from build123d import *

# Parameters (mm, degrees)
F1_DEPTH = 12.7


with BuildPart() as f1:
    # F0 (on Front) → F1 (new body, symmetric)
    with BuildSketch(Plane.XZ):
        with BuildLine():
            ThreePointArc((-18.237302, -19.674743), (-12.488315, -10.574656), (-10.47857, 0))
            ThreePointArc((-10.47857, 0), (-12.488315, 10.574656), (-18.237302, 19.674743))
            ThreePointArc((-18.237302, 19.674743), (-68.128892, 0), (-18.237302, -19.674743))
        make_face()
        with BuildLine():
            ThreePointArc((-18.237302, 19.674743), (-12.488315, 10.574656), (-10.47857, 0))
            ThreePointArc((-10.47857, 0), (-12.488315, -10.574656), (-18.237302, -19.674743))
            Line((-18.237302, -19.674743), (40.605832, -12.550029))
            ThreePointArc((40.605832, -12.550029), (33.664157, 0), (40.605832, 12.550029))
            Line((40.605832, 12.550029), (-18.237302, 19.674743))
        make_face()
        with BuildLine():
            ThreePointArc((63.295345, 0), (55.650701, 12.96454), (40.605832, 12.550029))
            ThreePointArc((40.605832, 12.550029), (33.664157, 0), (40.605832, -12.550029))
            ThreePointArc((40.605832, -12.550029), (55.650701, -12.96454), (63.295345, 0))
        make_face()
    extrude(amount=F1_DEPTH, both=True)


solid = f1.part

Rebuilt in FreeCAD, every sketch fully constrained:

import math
import FreeCAD as App
import Part
import Sketcher

V = App.Vector
Q = App.Units.Quantity

doc = App.newDocument("Part")
body = doc.addObject("PartDesign::Body", "Body")

# Sketch on XZ plane
sketch1 = doc.addObject("Sketcher::SketchObject", "Sketch")
body.addObject(sketch1)
sketch1.AttachmentSupport = (doc.XZ_Plane, [""])
sketch1.MapMode = "FlatFace"
sketch1.addGeometry([
    Part.ArcOfCircle(Part.Circle(V(-39.303731, 0, 0), V(0, 0, 1), 28.825161), math.radians(43.043583), math.radians(316.956417)),  # 0
    Part.LineSegment(V(-18.237302, -19.674743, 0), V(40.605832, -12.550029, 0)),  # 1
    Part.ArcOfCircle(Part.Circle(V(48.479751, 0, 0), V(0, 0, 1), 14.815594), math.radians(-122.10426), math.radians(-0.000001)),  # 2
    Part.ArcOfCircle(Part.Circle(V(48.479751, 0, 0), V(0, 0, 1), 14.815594), math.radians(0.000001), math.radians(122.10426)),  # 3
    Part.LineSegment(V(40.605832, 12.550029, 0), V(-18.237302, 19.674743, 0)),  # 4
], False)
sketch1.addConstraint([
    Sketcher.Constraint("Coincident", 0, 2, 1, 1),
    Sketcher.Constraint("Coincident", 1, 2, 2, 1),
    Sketcher.Constraint("Tangent", 2, 2, 3, 1),
    Sketcher.Constraint("Coincident", 3, 2, 4, 1),
    Sketcher.Constraint("Coincident", 4, 2, 0, 1),
    Sketcher.Constraint("Equal", 2, 3),
    Sketcher.Constraint("Symmetric", 1, 2, 3, 2, -1),
    Sketcher.Constraint("Symmetric", 0, 2, 4, 2, -1),
    Sketcher.Constraint("PointOnObject", 2, 2, -1),
    Sketcher.Constraint("Radius", 0, 28.825161),
    Sketcher.Constraint("Radius", 2, 14.815594),
    Sketcher.Constraint("DistanceX", 4, 2, -1, 1, 18.237302),
    Sketcher.Constraint("DistanceX", 0, 3, -1, 1, 39.303731),
    Sketcher.Constraint("DistanceX", -1, 1, 2, 3, 48.479751),
    Sketcher.Constraint("DistanceY", 1, 2, -1, 1, 12.550029),
])
pad1 = doc.addObject("PartDesign::Pad", "Pad")
body.addObject(pad1)
pad1.Profile = sketch1
pad1.Length = Q("1 in")
pad1.Midplane = True

doc.recompute()
